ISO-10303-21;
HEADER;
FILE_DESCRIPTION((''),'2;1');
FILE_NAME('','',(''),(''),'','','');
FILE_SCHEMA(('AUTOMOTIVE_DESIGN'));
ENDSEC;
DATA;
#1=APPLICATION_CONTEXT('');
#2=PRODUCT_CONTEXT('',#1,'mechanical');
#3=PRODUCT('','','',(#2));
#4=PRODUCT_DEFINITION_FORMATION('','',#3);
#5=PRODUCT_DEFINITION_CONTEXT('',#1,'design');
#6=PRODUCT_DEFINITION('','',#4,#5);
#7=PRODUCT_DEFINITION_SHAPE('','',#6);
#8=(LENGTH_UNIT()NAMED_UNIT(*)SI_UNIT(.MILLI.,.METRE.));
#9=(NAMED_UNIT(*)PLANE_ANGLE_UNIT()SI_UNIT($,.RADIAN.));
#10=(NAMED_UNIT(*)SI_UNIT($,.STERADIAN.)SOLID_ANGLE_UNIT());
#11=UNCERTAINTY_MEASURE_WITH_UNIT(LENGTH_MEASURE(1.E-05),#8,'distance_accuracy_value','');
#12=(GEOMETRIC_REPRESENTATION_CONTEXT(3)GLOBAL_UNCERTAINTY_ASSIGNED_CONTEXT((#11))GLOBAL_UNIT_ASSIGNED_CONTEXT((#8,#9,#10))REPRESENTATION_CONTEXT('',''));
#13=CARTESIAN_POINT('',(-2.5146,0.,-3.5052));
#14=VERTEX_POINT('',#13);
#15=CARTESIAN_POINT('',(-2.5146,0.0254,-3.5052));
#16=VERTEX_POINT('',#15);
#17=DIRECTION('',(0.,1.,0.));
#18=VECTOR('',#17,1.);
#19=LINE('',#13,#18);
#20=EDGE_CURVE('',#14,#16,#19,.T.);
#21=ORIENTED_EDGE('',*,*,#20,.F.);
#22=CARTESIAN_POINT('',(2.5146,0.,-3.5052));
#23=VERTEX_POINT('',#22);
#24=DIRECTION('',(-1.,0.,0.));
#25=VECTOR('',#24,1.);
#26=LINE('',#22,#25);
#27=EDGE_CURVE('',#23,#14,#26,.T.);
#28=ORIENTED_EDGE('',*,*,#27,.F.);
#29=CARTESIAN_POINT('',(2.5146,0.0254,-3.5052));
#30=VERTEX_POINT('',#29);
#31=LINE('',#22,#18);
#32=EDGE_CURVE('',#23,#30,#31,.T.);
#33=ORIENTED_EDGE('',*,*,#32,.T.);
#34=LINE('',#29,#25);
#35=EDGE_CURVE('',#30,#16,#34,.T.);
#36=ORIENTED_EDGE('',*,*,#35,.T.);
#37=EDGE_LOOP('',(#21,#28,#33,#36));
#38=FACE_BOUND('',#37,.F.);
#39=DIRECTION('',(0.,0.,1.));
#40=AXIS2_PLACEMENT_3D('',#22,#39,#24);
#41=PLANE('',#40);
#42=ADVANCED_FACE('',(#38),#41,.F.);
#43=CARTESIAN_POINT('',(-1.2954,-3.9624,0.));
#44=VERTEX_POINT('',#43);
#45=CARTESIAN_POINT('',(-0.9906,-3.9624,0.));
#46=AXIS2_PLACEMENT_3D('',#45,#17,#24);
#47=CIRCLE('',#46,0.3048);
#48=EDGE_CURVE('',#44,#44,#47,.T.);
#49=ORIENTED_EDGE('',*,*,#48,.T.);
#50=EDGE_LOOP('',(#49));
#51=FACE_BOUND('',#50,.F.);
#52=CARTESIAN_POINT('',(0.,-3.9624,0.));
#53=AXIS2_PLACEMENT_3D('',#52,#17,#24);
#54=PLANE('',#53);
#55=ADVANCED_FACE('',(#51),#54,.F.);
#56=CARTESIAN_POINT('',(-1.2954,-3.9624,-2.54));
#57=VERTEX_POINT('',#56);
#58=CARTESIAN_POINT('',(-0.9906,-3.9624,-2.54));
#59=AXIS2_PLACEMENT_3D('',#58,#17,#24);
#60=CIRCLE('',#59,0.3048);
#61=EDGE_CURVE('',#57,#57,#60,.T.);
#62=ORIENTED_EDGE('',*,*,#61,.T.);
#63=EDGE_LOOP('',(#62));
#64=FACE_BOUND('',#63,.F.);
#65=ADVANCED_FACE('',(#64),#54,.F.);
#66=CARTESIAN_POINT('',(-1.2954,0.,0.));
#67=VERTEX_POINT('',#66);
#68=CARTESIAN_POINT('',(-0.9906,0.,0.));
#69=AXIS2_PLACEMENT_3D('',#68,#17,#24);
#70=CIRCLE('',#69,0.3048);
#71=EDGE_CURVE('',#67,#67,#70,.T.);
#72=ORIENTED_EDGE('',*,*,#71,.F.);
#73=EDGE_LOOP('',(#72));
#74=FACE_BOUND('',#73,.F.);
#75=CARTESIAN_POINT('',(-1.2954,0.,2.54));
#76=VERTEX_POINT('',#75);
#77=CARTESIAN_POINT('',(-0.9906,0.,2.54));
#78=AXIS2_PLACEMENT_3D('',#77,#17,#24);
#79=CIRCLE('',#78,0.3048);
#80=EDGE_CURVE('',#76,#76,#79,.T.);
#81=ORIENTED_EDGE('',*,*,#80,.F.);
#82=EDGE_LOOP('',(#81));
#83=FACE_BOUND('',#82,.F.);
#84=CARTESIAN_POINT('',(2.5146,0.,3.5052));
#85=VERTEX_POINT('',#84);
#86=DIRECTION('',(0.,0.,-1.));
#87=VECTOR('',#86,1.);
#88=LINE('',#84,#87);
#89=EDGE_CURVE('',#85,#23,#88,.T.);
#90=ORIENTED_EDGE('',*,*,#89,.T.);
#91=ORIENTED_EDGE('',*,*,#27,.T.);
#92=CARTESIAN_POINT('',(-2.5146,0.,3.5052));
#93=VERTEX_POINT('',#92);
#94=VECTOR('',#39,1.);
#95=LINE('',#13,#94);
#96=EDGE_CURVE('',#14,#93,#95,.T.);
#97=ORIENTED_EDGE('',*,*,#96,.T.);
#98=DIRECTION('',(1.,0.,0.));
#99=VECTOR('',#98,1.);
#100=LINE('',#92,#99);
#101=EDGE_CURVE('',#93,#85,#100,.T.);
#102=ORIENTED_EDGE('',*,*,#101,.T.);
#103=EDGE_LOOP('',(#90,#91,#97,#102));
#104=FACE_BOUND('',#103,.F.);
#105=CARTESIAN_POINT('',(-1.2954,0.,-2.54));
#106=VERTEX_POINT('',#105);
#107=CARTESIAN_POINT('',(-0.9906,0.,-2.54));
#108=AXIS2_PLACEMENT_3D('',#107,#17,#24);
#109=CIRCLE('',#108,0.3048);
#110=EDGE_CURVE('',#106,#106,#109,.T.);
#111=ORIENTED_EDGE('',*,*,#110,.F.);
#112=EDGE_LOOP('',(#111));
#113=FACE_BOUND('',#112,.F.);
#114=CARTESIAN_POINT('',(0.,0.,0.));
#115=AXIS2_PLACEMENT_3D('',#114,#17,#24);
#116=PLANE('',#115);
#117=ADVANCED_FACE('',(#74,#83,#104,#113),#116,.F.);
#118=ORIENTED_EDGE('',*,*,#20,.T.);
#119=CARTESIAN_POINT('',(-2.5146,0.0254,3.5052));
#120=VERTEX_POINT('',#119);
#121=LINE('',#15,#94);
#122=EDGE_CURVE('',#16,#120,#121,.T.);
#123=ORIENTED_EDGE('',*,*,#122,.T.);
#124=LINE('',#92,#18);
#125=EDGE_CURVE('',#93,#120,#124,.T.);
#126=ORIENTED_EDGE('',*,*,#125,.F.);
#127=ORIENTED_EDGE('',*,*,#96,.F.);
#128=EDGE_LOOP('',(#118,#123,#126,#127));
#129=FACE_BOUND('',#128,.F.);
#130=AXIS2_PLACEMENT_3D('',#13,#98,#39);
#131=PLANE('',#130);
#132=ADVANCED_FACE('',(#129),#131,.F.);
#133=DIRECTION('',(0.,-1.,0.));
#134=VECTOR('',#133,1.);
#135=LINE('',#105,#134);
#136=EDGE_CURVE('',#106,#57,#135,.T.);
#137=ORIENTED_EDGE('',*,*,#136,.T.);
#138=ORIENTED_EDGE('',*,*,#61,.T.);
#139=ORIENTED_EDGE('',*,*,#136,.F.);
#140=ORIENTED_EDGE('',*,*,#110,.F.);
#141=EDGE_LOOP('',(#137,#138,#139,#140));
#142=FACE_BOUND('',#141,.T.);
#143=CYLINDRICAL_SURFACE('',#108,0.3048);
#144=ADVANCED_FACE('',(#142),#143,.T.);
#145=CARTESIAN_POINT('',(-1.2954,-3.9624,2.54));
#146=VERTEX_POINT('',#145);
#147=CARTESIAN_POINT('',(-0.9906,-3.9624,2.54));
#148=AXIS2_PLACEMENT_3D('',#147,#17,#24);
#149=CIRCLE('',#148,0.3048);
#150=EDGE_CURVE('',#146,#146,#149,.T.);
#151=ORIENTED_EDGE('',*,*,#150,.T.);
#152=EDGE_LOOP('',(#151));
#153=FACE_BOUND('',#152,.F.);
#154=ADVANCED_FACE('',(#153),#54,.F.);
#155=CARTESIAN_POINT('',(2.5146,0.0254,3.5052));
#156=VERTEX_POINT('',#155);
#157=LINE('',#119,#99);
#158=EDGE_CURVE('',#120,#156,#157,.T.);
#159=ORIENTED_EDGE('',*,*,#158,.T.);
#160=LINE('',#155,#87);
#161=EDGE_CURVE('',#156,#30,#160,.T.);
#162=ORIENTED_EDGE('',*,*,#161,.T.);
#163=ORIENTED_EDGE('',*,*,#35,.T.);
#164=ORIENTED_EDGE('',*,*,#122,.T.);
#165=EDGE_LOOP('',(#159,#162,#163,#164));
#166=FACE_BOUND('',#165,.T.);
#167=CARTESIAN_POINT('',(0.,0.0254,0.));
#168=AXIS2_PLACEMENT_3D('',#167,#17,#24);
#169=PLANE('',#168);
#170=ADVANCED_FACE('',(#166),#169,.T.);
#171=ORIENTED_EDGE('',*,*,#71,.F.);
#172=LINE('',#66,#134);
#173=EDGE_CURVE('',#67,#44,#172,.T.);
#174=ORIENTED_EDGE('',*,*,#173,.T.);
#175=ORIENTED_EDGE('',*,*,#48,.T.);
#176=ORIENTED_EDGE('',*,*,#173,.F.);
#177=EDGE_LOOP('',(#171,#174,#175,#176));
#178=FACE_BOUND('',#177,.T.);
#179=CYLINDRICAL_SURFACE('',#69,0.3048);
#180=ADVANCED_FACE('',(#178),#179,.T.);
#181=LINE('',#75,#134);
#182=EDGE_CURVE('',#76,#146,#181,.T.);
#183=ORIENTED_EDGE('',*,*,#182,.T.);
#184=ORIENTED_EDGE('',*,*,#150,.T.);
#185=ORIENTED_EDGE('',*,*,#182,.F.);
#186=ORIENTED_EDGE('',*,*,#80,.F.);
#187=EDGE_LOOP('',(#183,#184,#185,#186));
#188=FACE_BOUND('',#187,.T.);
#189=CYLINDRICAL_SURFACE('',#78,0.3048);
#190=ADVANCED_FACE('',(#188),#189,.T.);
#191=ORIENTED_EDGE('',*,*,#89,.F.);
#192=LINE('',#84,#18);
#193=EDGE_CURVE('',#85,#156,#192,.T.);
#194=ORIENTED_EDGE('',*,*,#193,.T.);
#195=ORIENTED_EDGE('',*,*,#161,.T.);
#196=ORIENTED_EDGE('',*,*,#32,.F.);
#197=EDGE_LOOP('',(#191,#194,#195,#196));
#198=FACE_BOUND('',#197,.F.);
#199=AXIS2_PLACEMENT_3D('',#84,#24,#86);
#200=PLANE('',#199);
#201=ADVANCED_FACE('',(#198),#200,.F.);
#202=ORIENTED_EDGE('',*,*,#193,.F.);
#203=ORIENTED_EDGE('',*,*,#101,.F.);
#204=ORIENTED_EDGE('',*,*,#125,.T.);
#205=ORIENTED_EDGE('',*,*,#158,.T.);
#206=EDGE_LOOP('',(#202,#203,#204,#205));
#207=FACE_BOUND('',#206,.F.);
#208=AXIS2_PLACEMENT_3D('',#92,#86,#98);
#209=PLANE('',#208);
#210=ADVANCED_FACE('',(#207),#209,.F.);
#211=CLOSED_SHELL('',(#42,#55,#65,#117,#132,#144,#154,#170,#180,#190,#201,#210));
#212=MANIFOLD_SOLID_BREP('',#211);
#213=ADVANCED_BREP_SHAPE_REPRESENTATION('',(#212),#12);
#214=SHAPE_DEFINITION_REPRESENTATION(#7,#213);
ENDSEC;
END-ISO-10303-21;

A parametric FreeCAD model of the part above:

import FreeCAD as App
import Part
import Sketcher

V = App.Vector
Q = App.Units.Quantity

doc = App.newDocument("Part")
params = doc.addObject("Spreadsheet::Sheet", "Params")
for row, (alias, value) in enumerate([
    ("sketch1_width", "0.198 in"),
    ("sketch1_height", "0.276 in"),
    ("pad1_length", "0.001 in"),
    ("sketch2_diameter", "0.024 in"),
    ("pad2_length", "0.156 in"),
    ("sketch3_diameter", "0.024 in"),
    ("pad3_length", "0.156 in"),
    ("sketch4_diameter", "0.024 in"),
    ("pad4_length", "0.156 in"),
], start=1):
    params.set(f"A{row}", alias)
    params.set(f"B{row}", "=" + value)
    params.setAlias(f"B{row}", alias)

body = doc.addObject("PartDesign::Body", "Body")

sketch1 = doc.addObject("Sketcher::SketchObject", "Sketch")
body.addObject(sketch1)
sketch1.AttachmentSupport = (doc.XZ_Plane, [""])
sketch1.MapMode = "FlatFace"
sketch1.addGeometry(Part.LineSegment(V(-2.5146, -3.5052, 0), V(-2.5146, 3.5052, 0)), False)
sketch1.addGeometry(Part.LineSegment(V(-2.5146, 3.5052, 0), V(2.5146, 3.5052, 0)), False)
sketch1.addGeometry(Part.LineSegment(V(2.5146, 3.5052, 0), V(2.5146, -3.5052, 0)), False)
sketch1.addGeometry(Part.LineSegment(V(2.5146, -3.5052, 0), V(-2.5146, -3.5052, 0)), False)
sketch1.addConstraint(Sketcher.Constraint("Coincident", 0, 2, 1, 1))
sketch1.addConstraint(Sketcher.Constraint("Coincident", 1, 2, 2, 1))
sketch1.addConstraint(Sketcher.Constraint("Coincident", 2, 2, 3, 1))
sketch1.addConstraint(Sketcher.Constraint("Coincident", 3, 2, 0, 1))
sketch1.addConstraint(Sketcher.Constraint("Vertical", 0))
sketch1.addConstraint(Sketcher.Constraint("Horizontal", 1))
sketch1.addConstraint(Sketcher.Constraint("Vertical", 2))
sketch1.addConstraint(Sketcher.Constraint("Horizontal", 3))
sketch1.addConstraint(Sketcher.Constraint("Symmetric", 0, 2, 2, 2, -1, 1))
sketch1.addConstraint(Sketcher.Constraint("DistanceX", 1, 1, 1, 2, Q("0.198 in")))
sketch1.addConstraint(Sketcher.Constraint("DistanceY", 0, 1, 0, 2, Q("0.276 in")))
sketch1.setExpression("Constraints[9]", "Params.sketch1_width")
sketch1.setExpression("Constraints[10]", "Params.sketch1_height")
pad1 = doc.addObject("PartDesign::Pad", "Pad")
body.addObject(pad1)
pad1.Profile = sketch1
pad1.setExpression("Length", "Params.pad1_length")
pad1.Reversed = True

sketch2 = doc.addObject("Sketcher::SketchObject", "Sketch001")
body.addObject(sketch2)
sketch2.AttachmentSupport = (doc.XZ_Plane, [""])
sketch2.MapMode = "FlatFace"
sketch2.addGeometry(Part.Circle(V(-0.9906, 0, 0), V(0, 0, 1), 0.3048), False)
sketch2.addConstraint(Sketcher.Constraint("PointOnObject", 0, 3, -1))
sketch2.addConstraint(Sketcher.Constraint("Diameter", 0, Q("0.024 in")))
sketch2.addConstraint(Sketcher.Constraint("DistanceX", 0, 3, -1, 1, Q("0.039 in")))
sketch2.setExpression("Constraints[1]", "Params.sketch2_diameter")
pad2 = doc.addObject("PartDesign::Pad", "Pad001")
body.addObject(pad2)
pad2.Profile = sketch2
pad2.setExpression("Length", "Params.pad2_length")

sketch3 = doc.addObject("Sketcher::SketchObject", "Sketch002")
body.addObject(sketch3)
sketch3.AttachmentSupport = (doc.XZ_Plane, [""])
sketch3.MapMode = "FlatFace"
sketch3.addGeometry(Part.Circle(V(-0.9906, -2.54, 0), V(0, 0, 1), 0.3048), False)
sketch3.addConstraint(Sketcher.Constraint("Diameter", 0, Q("0.024 in")))
sketch3.addConstraint(Sketcher.Constraint("DistanceY", 0, 3, -1, 1, Q("0.1 in")))
sketch3.addConstraint(Sketcher.Constraint("DistanceX", 0, 3, -1, 1, Q("0.039 in")))
sketch3.setExpression("Constraints[0]", "Params.sketch3_diameter")
pad3 = doc.addObject("PartDesign::Pad", "Pad002")
body.addObject(pad3)
pad3.Profile = sketch3
pad3.setExpression("Length", "Params.pad3_length")

sketch4 = doc.addObject("Sketcher::SketchObject", "Sketch003")
body.addObject(sketch4)
sketch4.AttachmentSupport = (doc.XZ_Plane, [""])
sketch4.MapMode = "FlatFace"
sketch4.addGeometry(Part.Circle(V(-0.9906, 2.54, 0), V(0, 0, 1), 0.3048), False)
sketch4.addConstraint(Sketcher.Constraint("Diameter", 0, Q("0.024 in")))
sketch4.addConstraint(Sketcher.Constraint("DistanceY", -1, 1, 0, 3, Q("0.1 in")))
sketch4.addConstraint(Sketcher.Constraint("DistanceX", 0, 3, -1, 1, Q("0.039 in")))
sketch4.setExpression("Constraints[0]", "Params.sketch4_diameter")
pad4 = doc.addObject("PartDesign::Pad", "Pad003")
body.addObject(pad4)
pad4.Profile = sketch4
pad4.setExpression("Length", "Params.pad4_length")

doc.recompute()
